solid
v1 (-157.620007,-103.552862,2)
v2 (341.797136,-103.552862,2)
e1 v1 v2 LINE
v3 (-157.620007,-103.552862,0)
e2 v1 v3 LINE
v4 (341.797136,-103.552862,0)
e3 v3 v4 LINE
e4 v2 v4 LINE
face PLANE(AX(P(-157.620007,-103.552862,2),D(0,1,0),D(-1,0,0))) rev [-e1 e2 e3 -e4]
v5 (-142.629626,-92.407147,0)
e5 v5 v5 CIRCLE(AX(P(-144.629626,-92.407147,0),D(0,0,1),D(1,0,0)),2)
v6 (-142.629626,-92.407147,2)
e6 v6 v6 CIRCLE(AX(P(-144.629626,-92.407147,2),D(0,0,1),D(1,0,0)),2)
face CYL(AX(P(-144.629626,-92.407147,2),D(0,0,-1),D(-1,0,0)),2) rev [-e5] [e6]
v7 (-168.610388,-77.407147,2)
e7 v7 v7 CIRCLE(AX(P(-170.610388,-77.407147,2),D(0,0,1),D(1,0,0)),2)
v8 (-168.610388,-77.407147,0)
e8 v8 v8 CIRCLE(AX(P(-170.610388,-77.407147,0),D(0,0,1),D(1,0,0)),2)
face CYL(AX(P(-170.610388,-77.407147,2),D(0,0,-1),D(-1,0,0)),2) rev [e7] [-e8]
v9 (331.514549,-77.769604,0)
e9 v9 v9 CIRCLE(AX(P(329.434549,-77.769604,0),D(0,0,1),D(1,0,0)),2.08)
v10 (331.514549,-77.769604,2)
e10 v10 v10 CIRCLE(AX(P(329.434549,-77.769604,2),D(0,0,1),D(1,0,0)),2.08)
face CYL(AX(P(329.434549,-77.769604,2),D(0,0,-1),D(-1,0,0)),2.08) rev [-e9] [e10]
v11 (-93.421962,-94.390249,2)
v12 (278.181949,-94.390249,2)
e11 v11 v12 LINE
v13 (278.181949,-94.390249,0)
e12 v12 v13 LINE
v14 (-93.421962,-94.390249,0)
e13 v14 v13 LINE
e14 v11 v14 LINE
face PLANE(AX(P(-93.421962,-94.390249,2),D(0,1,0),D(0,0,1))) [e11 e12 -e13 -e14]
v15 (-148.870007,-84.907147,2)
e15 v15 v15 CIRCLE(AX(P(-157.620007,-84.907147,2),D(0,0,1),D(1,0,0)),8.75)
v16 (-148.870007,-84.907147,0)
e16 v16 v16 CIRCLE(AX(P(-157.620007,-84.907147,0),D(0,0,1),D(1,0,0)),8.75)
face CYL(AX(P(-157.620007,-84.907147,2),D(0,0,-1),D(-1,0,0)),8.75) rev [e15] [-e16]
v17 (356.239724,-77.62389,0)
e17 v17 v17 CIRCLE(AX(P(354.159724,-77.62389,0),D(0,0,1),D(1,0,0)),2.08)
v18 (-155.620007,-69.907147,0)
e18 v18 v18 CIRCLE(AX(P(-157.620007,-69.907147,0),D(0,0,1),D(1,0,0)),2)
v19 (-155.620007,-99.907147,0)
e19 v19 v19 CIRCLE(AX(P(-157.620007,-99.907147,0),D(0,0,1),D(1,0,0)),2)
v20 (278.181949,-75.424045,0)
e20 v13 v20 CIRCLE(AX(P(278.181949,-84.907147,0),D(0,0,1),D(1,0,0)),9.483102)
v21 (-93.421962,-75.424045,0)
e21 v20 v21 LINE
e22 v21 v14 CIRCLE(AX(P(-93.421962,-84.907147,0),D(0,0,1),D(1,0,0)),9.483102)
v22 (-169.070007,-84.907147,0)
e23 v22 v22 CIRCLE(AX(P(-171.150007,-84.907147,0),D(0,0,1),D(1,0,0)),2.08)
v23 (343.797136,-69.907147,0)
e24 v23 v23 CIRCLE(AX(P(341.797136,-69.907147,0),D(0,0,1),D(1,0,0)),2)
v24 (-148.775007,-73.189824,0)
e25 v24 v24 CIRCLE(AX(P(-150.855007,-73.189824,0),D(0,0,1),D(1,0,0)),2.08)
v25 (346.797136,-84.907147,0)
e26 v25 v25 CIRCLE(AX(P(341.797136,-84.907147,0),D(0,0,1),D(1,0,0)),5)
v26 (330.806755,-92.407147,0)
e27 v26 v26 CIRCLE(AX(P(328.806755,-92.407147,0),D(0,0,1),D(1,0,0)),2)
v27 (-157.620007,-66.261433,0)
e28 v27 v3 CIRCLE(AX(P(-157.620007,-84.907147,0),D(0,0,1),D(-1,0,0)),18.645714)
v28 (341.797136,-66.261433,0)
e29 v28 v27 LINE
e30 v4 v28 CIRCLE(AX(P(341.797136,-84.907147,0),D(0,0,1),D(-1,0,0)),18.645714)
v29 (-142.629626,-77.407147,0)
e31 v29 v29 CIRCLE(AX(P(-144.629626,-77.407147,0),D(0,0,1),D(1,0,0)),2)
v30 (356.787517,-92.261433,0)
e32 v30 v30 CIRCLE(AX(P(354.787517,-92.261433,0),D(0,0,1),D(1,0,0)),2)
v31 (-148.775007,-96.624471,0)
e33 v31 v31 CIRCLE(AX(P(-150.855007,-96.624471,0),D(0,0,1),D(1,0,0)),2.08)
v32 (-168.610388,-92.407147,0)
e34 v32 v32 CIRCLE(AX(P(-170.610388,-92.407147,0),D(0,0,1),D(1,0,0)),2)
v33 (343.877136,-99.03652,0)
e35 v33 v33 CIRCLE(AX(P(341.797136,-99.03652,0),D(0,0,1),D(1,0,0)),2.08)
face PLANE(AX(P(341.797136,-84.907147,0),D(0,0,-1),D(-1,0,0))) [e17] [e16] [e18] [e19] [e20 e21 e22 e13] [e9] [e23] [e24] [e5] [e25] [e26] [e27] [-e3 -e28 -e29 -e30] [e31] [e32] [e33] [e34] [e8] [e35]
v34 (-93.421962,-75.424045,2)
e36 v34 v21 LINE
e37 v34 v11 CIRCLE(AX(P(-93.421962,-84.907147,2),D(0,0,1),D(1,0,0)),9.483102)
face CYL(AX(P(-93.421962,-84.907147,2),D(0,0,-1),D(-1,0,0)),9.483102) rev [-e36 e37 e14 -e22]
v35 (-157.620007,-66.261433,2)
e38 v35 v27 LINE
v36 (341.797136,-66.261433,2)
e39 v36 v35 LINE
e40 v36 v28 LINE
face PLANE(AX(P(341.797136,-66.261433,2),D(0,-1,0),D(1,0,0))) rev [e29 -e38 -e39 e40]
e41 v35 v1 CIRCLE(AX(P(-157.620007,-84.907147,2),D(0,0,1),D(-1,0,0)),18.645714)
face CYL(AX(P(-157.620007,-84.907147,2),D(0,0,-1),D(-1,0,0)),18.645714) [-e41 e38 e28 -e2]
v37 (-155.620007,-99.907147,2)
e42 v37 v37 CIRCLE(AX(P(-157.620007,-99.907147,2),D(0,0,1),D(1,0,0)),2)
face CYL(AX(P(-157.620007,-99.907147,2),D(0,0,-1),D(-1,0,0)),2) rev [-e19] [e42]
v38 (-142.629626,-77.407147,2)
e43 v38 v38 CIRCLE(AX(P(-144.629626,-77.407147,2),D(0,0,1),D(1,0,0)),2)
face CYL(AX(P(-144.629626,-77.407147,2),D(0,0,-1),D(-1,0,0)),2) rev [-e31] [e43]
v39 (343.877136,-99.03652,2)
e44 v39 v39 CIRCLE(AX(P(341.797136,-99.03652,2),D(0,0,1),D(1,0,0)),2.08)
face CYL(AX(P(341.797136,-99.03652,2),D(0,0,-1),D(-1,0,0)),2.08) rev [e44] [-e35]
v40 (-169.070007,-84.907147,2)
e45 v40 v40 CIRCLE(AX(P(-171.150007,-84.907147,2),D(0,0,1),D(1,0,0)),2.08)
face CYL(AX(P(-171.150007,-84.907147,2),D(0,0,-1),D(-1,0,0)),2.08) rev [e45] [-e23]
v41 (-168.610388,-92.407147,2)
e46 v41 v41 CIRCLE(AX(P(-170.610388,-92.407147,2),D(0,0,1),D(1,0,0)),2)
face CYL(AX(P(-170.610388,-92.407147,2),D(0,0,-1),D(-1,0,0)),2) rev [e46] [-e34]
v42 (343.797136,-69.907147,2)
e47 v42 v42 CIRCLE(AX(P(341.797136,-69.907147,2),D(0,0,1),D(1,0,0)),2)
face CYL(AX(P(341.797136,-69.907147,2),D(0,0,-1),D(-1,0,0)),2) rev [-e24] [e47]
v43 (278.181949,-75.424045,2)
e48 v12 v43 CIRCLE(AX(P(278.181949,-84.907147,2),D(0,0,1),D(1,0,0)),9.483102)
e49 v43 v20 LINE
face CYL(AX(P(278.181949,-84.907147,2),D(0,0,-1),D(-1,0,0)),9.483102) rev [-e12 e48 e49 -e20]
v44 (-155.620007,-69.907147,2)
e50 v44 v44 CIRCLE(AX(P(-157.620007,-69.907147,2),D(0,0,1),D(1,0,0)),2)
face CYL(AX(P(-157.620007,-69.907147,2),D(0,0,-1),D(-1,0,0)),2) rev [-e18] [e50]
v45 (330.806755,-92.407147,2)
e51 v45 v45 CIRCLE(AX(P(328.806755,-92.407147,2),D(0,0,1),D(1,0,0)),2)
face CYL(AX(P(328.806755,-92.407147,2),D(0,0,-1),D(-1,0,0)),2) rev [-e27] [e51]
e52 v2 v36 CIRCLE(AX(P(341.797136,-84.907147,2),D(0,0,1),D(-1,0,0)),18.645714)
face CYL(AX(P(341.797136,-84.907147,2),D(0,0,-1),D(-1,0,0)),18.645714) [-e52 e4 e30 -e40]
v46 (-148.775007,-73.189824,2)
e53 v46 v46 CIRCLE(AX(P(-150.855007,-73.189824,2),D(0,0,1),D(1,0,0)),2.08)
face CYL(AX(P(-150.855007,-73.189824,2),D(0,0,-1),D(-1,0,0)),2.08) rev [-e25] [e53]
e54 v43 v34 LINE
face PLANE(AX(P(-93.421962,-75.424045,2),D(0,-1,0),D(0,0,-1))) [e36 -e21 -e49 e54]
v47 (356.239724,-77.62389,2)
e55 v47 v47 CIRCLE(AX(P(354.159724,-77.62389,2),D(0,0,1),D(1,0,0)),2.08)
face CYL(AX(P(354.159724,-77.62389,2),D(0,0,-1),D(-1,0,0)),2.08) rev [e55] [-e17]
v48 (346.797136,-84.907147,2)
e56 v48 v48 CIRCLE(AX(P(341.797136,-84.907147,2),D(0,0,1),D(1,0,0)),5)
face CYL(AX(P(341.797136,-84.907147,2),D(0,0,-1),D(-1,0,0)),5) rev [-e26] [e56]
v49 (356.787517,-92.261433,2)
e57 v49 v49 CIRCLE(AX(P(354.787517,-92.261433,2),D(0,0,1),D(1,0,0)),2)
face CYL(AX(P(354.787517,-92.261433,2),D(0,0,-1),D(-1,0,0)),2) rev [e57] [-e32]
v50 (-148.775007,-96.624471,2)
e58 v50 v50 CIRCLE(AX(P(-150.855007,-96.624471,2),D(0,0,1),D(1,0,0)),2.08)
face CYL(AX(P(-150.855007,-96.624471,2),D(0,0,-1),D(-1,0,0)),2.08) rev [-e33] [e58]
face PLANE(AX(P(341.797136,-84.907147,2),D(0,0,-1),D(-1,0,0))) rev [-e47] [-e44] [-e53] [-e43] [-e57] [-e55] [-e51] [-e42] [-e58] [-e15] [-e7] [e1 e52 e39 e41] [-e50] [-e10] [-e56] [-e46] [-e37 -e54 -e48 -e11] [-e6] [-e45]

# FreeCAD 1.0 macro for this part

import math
import FreeCAD as App
import Part
import Sketcher

doc = App.newDocument("Part")
body = doc.addObject("PartDesign::Body", "Body")

sketch1 = body.newObject("Sketcher::SketchObject", "Sketch")
sketch1.AttachmentSupport = (doc.getObject("XY_Plane"), [""])
sketch1.MapMode = "FlatFace"
sketch1.addGeometry([
    Part.LineSegment(App.Vector(341.797136, -66.261433, 0), App.Vector(-157.620007, -66.261433, 0)),
    Part.ArcOfCircle(Part.Circle(App.Vector(-157.620007, -84.907147, 0), App.Vector(0, 0, 1), 18.645714), math.radians(90), math.radians(270)),
    Part.LineSegment(App.Vector(-157.620007, -103.552862, 0), App.Vector(341.797136, -103.552862, 0)),
    Part.ArcOfCircle(Part.Circle(App.Vector(341.797136, -84.907147, 0), App.Vector(0, 0, 1), 18.645714), math.radians(-90), math.radians(90)),
    Part.Circle(App.Vector(-157.620007, -99.907147, 0), App.Vector(0, 0, 1), 2),
    Part.Circle(App.Vector(-150.855007, -96.624471, 0), App.Vector(0, 0, 1), 2.08),
    Part.Circle(App.Vector(-170.610388, -92.407147, 0), App.Vector(0, 0, 1), 2),
    Part.Circle(App.Vector(-144.629626, -92.407147, 0), App.Vector(0, 0, 1), 2),
    Part.Circle(App.Vector(341.797136, -99.03652, 0), App.Vector(0, 0, 1), 2.08),
    Part.ArcOfCircle(Part.Circle(App.Vector(-93.421962, -84.907147, 0), App.Vector(0, 0, 1), 9.483102), math.radians(90), math.radians(270)),
    Part.LineSegment(App.Vector(-93.421962, -75.424045, 0), App.Vector(278.181949, -75.424045, 0)),
    Part.ArcOfCircle(Part.Circle(App.Vector(278.181949, -84.907147, 0), App.Vector(0, 0, 1), 9.483102), math.radians(-90), math.radians(90)),
    Part.LineSegment(App.Vector(278.181949, -94.390249, 0), App.Vector(-93.421962, -94.390249, 0)),
    Part.Circle(App.Vector(328.806755, -92.407147, 0), App.Vector(0, 0, 1), 2),
    Part.Circle(App.Vector(354.787517, -92.261433, 0), App.Vector(0, 0, 1), 2),
    Part.Circle(App.Vector(-171.150007, -84.907147, 0), App.Vector(0, 0, 1), 2.08),
    Part.Circle(App.Vector(-157.620007, -84.907147, 0), App.Vector(0, 0, 1), 8.75),
    Part.Circle(App.Vector(-170.610388, -77.407147, 0), App.Vector(0, 0, 1), 2),
    Part.Circle(App.Vector(-144.629626, -77.407147, 0), App.Vector(0, 0, 1), 2),
    Part.Circle(App.Vector(-150.855007, -73.189824, 0), App.Vector(0, 0, 1), 2.08),
    Part.Circle(App.Vector(-157.620007, -69.907147, 0), App.Vector(0, 0, 1), 2),
    Part.Circle(App.Vector(341.797136, -84.907147, 0), App.Vector(0, 0, 1), 5),
    Part.Circle(App.Vector(329.434549, -77.769604, 0), App.Vector(0, 0, 1), 2.08),
    Part.Circle(App.Vector(354.159724, -77.62389, 0), App.Vector(0, 0, 1), 2.08),
    Part.Circle(App.Vector(341.797136, -69.907147, 0), App.Vector(0, 0, 1), 2),
], False)
sketch1.addConstraint([
    Sketcher.Constraint("Tangent", 0, 2, 1, 1),
    Sketcher.Constraint("Tangent", 1, 2, 2, 1),
    Sketcher.Constraint("Tangent", 2, 2, 3, 1),
    Sketcher.Constraint("Tangent", 3, 2, 0, 1),
    Sketcher.Constraint("Tangent", 9, 1, 10, 1),
    Sketcher.Constraint("Tangent", 10, 2, 11, 2),
    Sketcher.Constraint("Tangent", 11, 1, 12, 1),
    Sketcher.Constraint("Tangent", 12, 2, 9, 2),
    Sketcher.Constraint("Horizontal", 0),
    Sketcher.Constraint("Horizontal", 2),
    Sketcher.Constraint("Horizontal", 10),
    Sketcher.Constraint("Horizontal", 12),
    Sketcher.Constraint("Coincident", 16, 3, 1, 3),
    Sketcher.Constraint("Coincident", 21, 3, 3, 3),
    Sketcher.Constraint("Equal", 4, 6),
    Sketcher.Constraint("Equal", 6, 7),
    Sketcher.Constraint("Equal", 5, 8),
    Sketcher.Constraint("Equal", 7, 13),
    Sketcher.Constraint("Equal", 13, 14),
    Sketcher.Constraint("Equal", 8, 15),
    Sketcher.Constraint("Equal", 14, 17),
    Sketcher.Constraint("Equal", 17, 18),
    Sketcher.Constraint("Equal", 15, 19),
    Sketcher.Constraint("Equal", 18, 20),
    Sketcher.Constraint("Equal", 19, 22),
    Sketcher.Constraint("Equal", 22, 23),
    Sketcher.Constraint("Equal", 20, 24),
    Sketcher.Constraint("Horizontal", 6, 3, 7, 3),
    Sketcher.Constraint("Horizontal", 3, 3, 9, 3),
    Sketcher.Constraint("Horizontal", 7, 3, 13, 3),
    Sketcher.Constraint("Horizontal", 11, 3, 15, 3),
    Sketcher.Constraint("Horizontal", 17, 3, 18, 3),
    Sketcher.Constraint("Horizontal", 20, 3, 24, 3),
    Sketcher.Constraint("Vertical", 1, 3, 4, 3),
    Sketcher.Constraint("Vertical", 3, 3, 8, 3),
    Sketcher.Constraint("Vertical", 6, 3, 17, 3),
    Sketcher.Constraint("Vertical", 7, 3, 18, 3),
    Sketcher.Constraint("Vertical", 5, 3, 19, 3),
    Sketcher.Constraint("Vertical", 16, 3, 20, 3),
    Sketcher.Constraint("Vertical", 21, 3, 24, 3),
    Sketcher.Constraint("Diameter", 4, 4.0),
    Sketcher.Constraint("Diameter", 21, 10.0),
    Sketcher.Constraint("Diameter", 16, 17.5),
    Sketcher.Constraint("Diameter", 5, 4.16),
    Sketcher.Constraint("DistanceY", 4, 3, 1, 3, 15.0),
    Sketcher.Constraint("DistanceY", 6, 3, 17, 3, 15.0),
    Sketcher.Constraint("DistanceY", 1, 3, 20, 3, 15.0),
    Sketcher.Constraint("DistanceY", 6, 3, 1, 3, 7.5),
    Sketcher.Constraint("DistanceX", 15, 3, 1, 3, 13.53),
    Sketcher.Constraint("Radius", 1, 18.645714),
    Sketcher.Constraint("Radius", 9, 9.483102),
    Sketcher.Constraint("DistanceX", 4, 3, 5, 3, 6.765),
    Sketcher.Constraint("DistanceX", 10, 1, 10, 2, 371.603912),
    Sketcher.Constraint("DistanceX", 10, 2, 22, 3, 51.252599),
    Sketcher.Constraint("DistanceX", 0, 2, 0, 1, 499.417143),
    Sketcher.Constraint("DistanceY", 5, 3, -1, 1, 96.624471),
    Sketcher.Constraint("DistanceY", 8, 3, -1, 1, 99.03652),
    Sketcher.Constraint("DistanceX", -1, 1, 11, 3, 278.181949),
    Sketcher.Constraint("DistanceY", 23, 3, -1, 1, 77.62389),
    Sketcher.Constraint("DistanceY", 1, 2, -1, 1, 103.552862),
    Sketcher.Constraint("DistanceX", 6, 3, 1, 3, 12.990381),
    Sketcher.Constraint("DistanceX", 5, 3, 7, 3, 6.225381),
    Sketcher.Constraint("DistanceX", 13, 3, 8, 3, 12.990381),
    Sketcher.Constraint("DistanceX", 8, 3, 14, 3, 12.990381),
    Sketcher.Constraint("DistanceX", 11, 3, 14, 3, 76.605568),
    Sketcher.Constraint("DistanceY", 14, 3, 22, 3, 14.491829),
    Sketcher.Constraint("DistanceY", 19, 3, 0, 2, 6.928391),
    Sketcher.Constraint("DistanceY", 2, 2, 14, 3, 11.291429),
    Sketcher.Constraint("DistanceX", -1, 1, 23, 3, 354.159724),
])
pad1 = body.newObject("PartDesign::Pad", "Pad")
pad1.Profile = sketch1
pad1.Length = 2

doc.recompute()
